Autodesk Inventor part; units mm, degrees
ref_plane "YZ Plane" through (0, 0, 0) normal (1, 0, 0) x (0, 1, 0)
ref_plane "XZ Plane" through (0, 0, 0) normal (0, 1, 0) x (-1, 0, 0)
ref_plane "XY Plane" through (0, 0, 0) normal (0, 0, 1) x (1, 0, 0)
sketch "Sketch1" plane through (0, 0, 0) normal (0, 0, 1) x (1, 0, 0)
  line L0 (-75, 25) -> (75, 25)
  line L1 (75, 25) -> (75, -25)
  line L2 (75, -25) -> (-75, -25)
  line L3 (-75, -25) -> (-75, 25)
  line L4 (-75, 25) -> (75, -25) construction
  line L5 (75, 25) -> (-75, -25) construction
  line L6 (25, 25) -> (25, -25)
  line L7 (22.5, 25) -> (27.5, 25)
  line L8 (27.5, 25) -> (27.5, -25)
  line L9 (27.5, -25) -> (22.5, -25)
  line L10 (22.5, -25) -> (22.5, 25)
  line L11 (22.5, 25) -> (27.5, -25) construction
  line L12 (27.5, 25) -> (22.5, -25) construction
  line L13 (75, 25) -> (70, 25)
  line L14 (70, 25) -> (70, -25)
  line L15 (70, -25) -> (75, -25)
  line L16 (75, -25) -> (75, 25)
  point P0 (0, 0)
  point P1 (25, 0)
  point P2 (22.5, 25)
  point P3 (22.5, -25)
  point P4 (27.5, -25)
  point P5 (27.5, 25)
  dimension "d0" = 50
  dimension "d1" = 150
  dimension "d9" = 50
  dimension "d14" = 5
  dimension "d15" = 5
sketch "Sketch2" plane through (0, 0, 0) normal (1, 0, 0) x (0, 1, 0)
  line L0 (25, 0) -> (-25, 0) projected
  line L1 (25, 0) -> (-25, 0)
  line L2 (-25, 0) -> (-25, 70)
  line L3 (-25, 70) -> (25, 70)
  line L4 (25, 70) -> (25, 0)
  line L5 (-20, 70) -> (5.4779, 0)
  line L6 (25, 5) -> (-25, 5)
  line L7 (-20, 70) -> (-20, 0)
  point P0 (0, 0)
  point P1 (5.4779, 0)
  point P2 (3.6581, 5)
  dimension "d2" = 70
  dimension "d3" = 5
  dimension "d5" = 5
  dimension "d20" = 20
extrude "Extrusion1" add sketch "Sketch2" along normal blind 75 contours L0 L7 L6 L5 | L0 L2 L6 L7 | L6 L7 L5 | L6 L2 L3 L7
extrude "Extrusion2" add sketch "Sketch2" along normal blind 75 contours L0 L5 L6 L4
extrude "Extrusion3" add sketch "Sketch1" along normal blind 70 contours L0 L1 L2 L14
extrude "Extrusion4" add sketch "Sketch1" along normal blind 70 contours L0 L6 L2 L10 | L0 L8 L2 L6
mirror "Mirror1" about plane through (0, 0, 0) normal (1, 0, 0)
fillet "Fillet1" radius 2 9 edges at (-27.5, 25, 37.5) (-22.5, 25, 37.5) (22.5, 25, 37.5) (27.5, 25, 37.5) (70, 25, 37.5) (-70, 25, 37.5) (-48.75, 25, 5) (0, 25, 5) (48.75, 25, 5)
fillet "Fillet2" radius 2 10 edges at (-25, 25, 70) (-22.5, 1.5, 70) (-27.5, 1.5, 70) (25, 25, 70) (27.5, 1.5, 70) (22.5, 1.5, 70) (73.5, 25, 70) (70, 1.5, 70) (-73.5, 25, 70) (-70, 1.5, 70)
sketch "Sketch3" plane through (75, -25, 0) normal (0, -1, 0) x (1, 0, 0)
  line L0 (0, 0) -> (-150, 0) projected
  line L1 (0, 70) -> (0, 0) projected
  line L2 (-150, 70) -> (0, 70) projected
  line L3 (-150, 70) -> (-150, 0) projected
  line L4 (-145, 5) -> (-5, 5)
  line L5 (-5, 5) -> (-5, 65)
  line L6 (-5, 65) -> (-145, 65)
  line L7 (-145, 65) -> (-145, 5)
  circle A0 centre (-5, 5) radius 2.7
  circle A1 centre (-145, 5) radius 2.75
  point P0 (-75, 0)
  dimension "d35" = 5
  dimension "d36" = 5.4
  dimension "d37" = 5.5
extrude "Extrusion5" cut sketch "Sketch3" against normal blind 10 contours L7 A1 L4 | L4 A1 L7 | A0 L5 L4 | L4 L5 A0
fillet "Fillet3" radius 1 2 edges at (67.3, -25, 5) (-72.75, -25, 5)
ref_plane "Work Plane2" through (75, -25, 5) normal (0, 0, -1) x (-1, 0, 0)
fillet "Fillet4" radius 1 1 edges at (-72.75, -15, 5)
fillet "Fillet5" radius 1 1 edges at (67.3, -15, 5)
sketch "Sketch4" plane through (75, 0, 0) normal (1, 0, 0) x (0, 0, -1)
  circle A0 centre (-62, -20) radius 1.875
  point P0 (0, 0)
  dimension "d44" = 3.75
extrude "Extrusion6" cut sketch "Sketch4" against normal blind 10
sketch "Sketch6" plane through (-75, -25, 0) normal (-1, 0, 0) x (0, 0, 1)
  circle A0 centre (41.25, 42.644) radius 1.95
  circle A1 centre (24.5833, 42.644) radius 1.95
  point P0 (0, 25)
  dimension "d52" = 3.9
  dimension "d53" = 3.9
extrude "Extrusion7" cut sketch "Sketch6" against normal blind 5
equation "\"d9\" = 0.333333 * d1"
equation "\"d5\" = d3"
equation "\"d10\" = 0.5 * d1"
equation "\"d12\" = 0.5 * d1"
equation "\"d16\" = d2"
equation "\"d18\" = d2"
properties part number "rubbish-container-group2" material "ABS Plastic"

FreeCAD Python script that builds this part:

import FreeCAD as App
import Part
import Sketcher
Q = App.Units.Quantity


def edges_at(feature, points):
    """Names of the edges that pass closest to the given points."""
    edges = feature.Shape.Edges
    near = lambda p: min(range(len(edges)), key=lambda i: edges[i].distToShape(Part.Vertex(*p))[0])
    return sorted({f"Edge{near(p) + 1}" for p in points})


def add_polygon(sketch, points):
    """Adds a closed chain of lines whose ends are joined by coincident constraints."""
    first, n = sketch.GeometryCount, len(points)
    for a, b in zip(points, points[1:] + points[:1]):
        sketch.addGeometry(Part.LineSegment(App.Vector(*a, 0), App.Vector(*b, 0)), False)
    for i in range(n):
        sketch.addConstraint(Sketcher.Constraint("Coincident", first + i, 2, first + (i + 1) % n, 1))

doc = App.newDocument("Part")
params = doc.addObject("Spreadsheet::Sheet", "Params")
for row, (alias, value) in enumerate([
    ("sketch1_width", "5 mm"),
    ("sketch1_height", "70 mm"),
    ("pad1_length", "75 mm"),
    ("sketch2_height", "5 mm"),
    ("pad2_length", "75 mm"),
    ("sketch3_width", "5 mm"),
    ("sketch3_height", "50 mm"),
    ("pad3_length", "70 mm"),
    ("sketch4_width", "5 mm"),
    ("sketch4_height", "50 mm"),
    ("pad4_length", "70 mm"),
    ("fillet_radius", "2 mm"),
    ("fillet2_radius", "2 mm"),
    ("sketch5_diameter", "5.5 mm"),
    ("sketch5_diameter2", "5.4 mm"),
    ("pocket1_length", "10 mm"),
    ("fillet3_radius", "1 mm"),
    ("fillet4_radius", "1 mm"),
    ("fillet5_radius", "1 mm"),
    ("sketch6_diameter", "3.75 mm"),
    ("pocket2_length", "10 mm"),
    ("sketch7_diameter", "3.9 mm"),
    ("pocket3_length", "5 mm"),
], start=1):
    params.set(f"A{row}", alias)
    params.set(f"B{row}", "=" + value)
    params.setAlias(f"B{row}", alias)

body = doc.addObject("PartDesign::Body", "Body")

sketch1 = body.newObject("Sketcher::SketchObject", "Sketch")
sketch1.AttachmentSupport = (doc.getObject("YZ_Plane"), [""])
sketch1.MapMode = "FlatFace"
add_polygon(sketch1, [(5, 0), (-20, 70), (-25, 70), (-25, 0)])
sketch1.addConstraint(Sketcher.Constraint("Horizontal", 1))
sketch1.addConstraint(Sketcher.Constraint("Vertical", 2))
sketch1.addConstraint(Sketcher.Constraint("Horizontal", 3))
sketch1.addConstraint(Sketcher.Constraint("PointOnObject", 2, 2, -1))
sketch1.addConstraint(Sketcher.Constraint("DistanceX", 1, 2, 1, 1, 5.0))
sketch1.addConstraint(Sketcher.Constraint("DistanceY", 2, 2, 2, 1, 70.0))
sketch1.addConstraint(Sketcher.Constraint("DistanceX", 0, 2, -1, 1, 20.0))
sketch1.addConstraint(Sketcher.Constraint("Angle", 0, Q("110 deg")))
sketch1.setExpression("Constraints[8]", "Params.sketch1_width")
sketch1.setExpression("Constraints[9]", "Params.sketch1_height")
pad1 = body.newObject("PartDesign::Pad", "Pad")
pad1.Profile = sketch1
pad1.setExpression("Length", "Params.pad1_length")

sketch2 = body.newObject("Sketcher::SketchObject", "Sketch001")
sketch2.AttachmentSupport = (doc.getObject("YZ_Plane"), [""])
sketch2.MapMode = "FlatFace"
add_polygon(sketch2, [(5, 0), (25, 0), (25, 5), (4, 5)])
sketch2.addConstraint(Sketcher.Constraint("Horizontal", 0))
sketch2.addConstraint(Sketcher.Constraint("Vertical", 1))
sketch2.addConstraint(Sketcher.Constraint("Horizontal", 2))
sketch2.addConstraint(Sketcher.Constraint("PointOnObject", 0, 2, -1))
sketch2.addConstraint(Sketcher.Constraint("DistanceY", 1, 1, 1, 2, 5.0))
sketch2.addConstraint(Sketcher.Constraint("Angle", 3, Q("-70 deg")))
sketch2.addConstraint(Sketcher.Constraint("DistanceX", -1, 1, 0, 2, 25.0))
sketch2.addConstraint(Sketcher.Constraint("DistanceX", 0, 1, 0, 2, 19.522))
sketch2.setExpression("Constraints[8]", "Params.sketch2_height")
pad2 = body.newObject("PartDesign::Pad", "Pad001")
pad2.Profile = sketch2
pad2.setExpression("Length", "Params.pad2_length")

sketch3 = body.newObject("Sketcher::SketchObject", "Sketch002")
sketch3.AttachmentSupport = (doc.getObject("XY_Plane"), [""])
sketch3.MapMode = "FlatFace"
add_polygon(sketch3, [(75, 25), (70, 25), (70, -25), (75, -25)])
sketch3.addConstraint(Sketcher.Constraint("Horizontal", 0))
sketch3.addConstraint(Sketcher.Constraint("Vertical", 1))
sketch3.addConstraint(Sketcher.Constraint("Horizontal", 2))
sketch3.addConstraint(Sketcher.Constraint("Vertical", 3))
sketch3.addConstraint(Sketcher.Constraint("DistanceX", 0, 2, 0, 1, 5.0))
sketch3.addConstraint(Sketcher.Constraint("DistanceY", 1, 2, 1, 1, 50.0))
sketch3.addConstraint(Sketcher.Constraint("DistanceX", -1, 1, 0, 2, 70.0))
sketch3.addConstraint(Sketcher.Constraint("DistanceY", -1, 1, 0, 2, 25.0))
sketch3.setExpression("Constraints[8]", "Params.sketch3_width")
sketch3.setExpression("Constraints[9]", "Params.sketch3_height")
pad3 = body.newObject("PartDesign::Pad", "Pad002")
pad3.Profile = sketch3
pad3.setExpression("Length", "Params.pad3_length")

sketch4 = body.newObject("Sketcher::SketchObject", "Sketch003")
sketch4.AttachmentSupport = (doc.getObject("XY_Plane"), [""])
sketch4.MapMode = "FlatFace"
add_polygon(sketch4, [(22, 25), (22, -25), (28, -25), (28, 25)])
sketch4.addConstraint(Sketcher.Constraint("Vertical", 0))
sketch4.addConstraint(Sketcher.Constraint("Horizontal", 1))
sketch4.addConstraint(Sketcher.Constraint("Vertical", 2))
sketch4.addConstraint(Sketcher.Constraint("Horizontal", 3))
sketch4.addConstraint(Sketcher.Constraint("DistanceX", 1, 1, 1, 2, 5.0))
sketch4.addConstraint(Sketcher.Constraint("DistanceY", 0, 2, 0, 1, 50.0))
sketch4.addConstraint(Sketcher.Constraint("DistanceY", 0, 2, -1, 1, 25.0))
sketch4.addConstraint(Sketcher.Constraint("DistanceX", -1, 1, 0, 2, 22.5))
sketch4.setExpression("Constraints[8]", "Params.sketch4_width")
sketch4.setExpression("Constraints[9]", "Params.sketch4_height")
pad4 = body.newObject("PartDesign::Pad", "Pad003")
pad4.Profile = sketch4
pad4.setExpression("Length", "Params.pad4_length")
doc.recompute()

mirrored = body.newObject("PartDesign::Mirrored", "Mirrored")
mirrored.TransformMode = "Transform body"
mirrored.MirrorPlane = (doc.getObject("YZ_Plane"), [""])
body.Tip = mirrored
doc.recompute()

fillet = body.newObject("PartDesign::Fillet", "Fillet")
fillet.Base = (mirrored, edges_at(mirrored, [
    (-27.5, 25, 37.5),
    (-22.5, 25, 37.5),
    (22.5, 25, 37.5),
    (27.5, 25, 37.5),
    (70, 25, 37.5),
    (-70, 25, 37.5),
    (-48.75, 25, 5),
    (0, 25, 5),
    (48.75, 25, 5),
]))
fillet.setExpression("Radius", "Params.fillet_radius")
doc.recompute()

fillet2 = body.newObject("PartDesign::Fillet", "Fillet001")
fillet2.Base = (fillet, edges_at(fillet, [
    (-25, 25, 70),
    (-22.5, 1.5, 70),
    (-27.5, 1.5, 70),
    (25, 25, 70),
    (27.5, 1.5, 70),
    (22.5, 1.5, 70),
    (73.5, 25, 70),
    (70, 1.5, 70),
    (-73.5, 25, 70),
    (-70, 1.5, 70),
]))
fillet2.setExpression("Radius", "Params.fillet2_radius")

sketch5 = body.newObject("Sketcher::SketchObject", "Sketch004")
sketch5.AttachmentSupport = (doc.getObject("XZ_Plane"), [""])
sketch5.MapMode = "FlatFace"
sketch5.AttachmentOffset = App.Placement(App.Vector(0, 0, 25), App.Rotation())
sketch5.addGeometry(Part.Circle(App.Vector(-70, 5, 0), App.Vector(0, 0, 1), 2.8), False)
sketch5.addGeometry(Part.Circle(App.Vector(70, 5, 0), App.Vector(0, 0, 1), 2.7), False)
sketch5.addConstraint(Sketcher.Constraint("Symmetric", 0, 3, 1, 3, -2))
sketch5.addConstraint(Sketcher.Constraint("Diameter", 0, 5.5))
sketch5.addConstraint(Sketcher.Constraint("Diameter", 1, 5.4))
sketch5.addConstraint(Sketcher.Constraint("DistanceY", -1, 1, 0, 3, 5.0))
sketch5.addConstraint(Sketcher.Constraint("DistanceX", 0, 3, -1, 1, 70.0))
sketch5.setExpression("Constraints[1]", "Params.sketch5_diameter")
sketch5.setExpression("Constraints[2]", "Params.sketch5_diameter2")
pocket1 = body.newObject("PartDesign::Pocket", "Pocket")
pocket1.Profile = sketch5
pocket1.setExpression("Length", "Params.pocket1_length")
doc.recompute()

fillet3 = body.newObject("PartDesign::Fillet", "Fillet002")
fillet3.Base = (pocket1, edges_at(pocket1, [(67.3, -25, 5), (-72.75, -25, 5)]))
fillet3.setExpression("Radius", "Params.fillet3_radius")
doc.recompute()

fillet4 = body.newObject("PartDesign::Fillet", "Fillet003")
fillet4.Base = (fillet3, edges_at(fillet3, [(-72.75, -15, 5)]))
fillet4.setExpression("Radius", "Params.fillet4_radius")
doc.recompute()

fillet5 = body.newObject("PartDesign::Fillet", "Fillet004")
fillet5.Base = (fillet4, edges_at(fillet4, [(67.3, -15, 5)]))
fillet5.setExpression("Radius", "Params.fillet5_radius")

sketch6 = body.newObject("Sketcher::SketchObject", "Sketch005")
sketch6.AttachmentSupport = (doc.getObject("YZ_Plane"), [""])
sketch6.MapMode = "FlatFace"
sketch6.AttachmentOffset = App.Placement(App.Vector(0, 0, 75), App.Rotation())
sketch6.addGeometry(Part.Circle(App.Vector(-20, 62, 0), App.Vector(0, 0, 1), 1.9), False)
sketch6.addConstraint(Sketcher.Constraint("Diameter", 0, 3.75))
sketch6.addConstraint(Sketcher.Constraint("DistanceX", 0, 3, -1, 1, 20.0))
sketch6.addConstraint(Sketcher.Constraint("DistanceY", -1, 1, 0, 3, 62.0))
sketch6.setExpression("Constraints[0]", "Params.sketch6_diameter")
pocket2 = body.newObject("PartDesign::Pocket", "Pocket001")
pocket2.Profile = sketch6
pocket2.setExpression("Length", "Params.pocket2_length")

sketch7 = body.newObject("Sketcher::SketchObject", "Sketch006")
sketch7.AttachmentSupport = (doc.getObject("YZ_Plane"), [""])
sketch7.MapMode = "FlatFace"
sketch7.AttachmentOffset = App.Placement(App.Vector(0, 0, -75), App.Rotation())
sketch7.addGeometry(Part.Circle(App.Vector(17.6, 41.2, 0), App.Vector(0, 0, 1), 1.9), False)
sketch7.addGeometry(Part.Circle(App.Vector(17.6, 24.6, 0), App.Vector(0, 0, 1), 1.9), False)
sketch7.addConstraint(Sketcher.Constraint("Equal", 0, 1))
sketch7.addConstraint(Sketcher.Constraint("Vertical", 0, 3, 1, 3))
sketch7.addConstraint(Sketcher.Constraint("Diameter", 0, 3.9))
sketch7.addConstraint(Sketcher.Constraint("DistanceY", -1, 1, 0, 3, 41.25))
sketch7.addConstraint(Sketcher.Constraint("DistanceX", -1, 1, 0, 3, 17.644))
sketch7.addConstraint(Sketcher.Constraint("DistanceY", -1, 1, 1, 3, 24.5833))
sketch7.setExpression("Constraints[2]", "Params.sketch7_diameter")
pocket3 = body.newObject("PartDesign::Pocket", "Pocket002")
pocket3.Profile = sketch7
pocket3.setExpression("Length", "Params.pocket3_length")
pocket3.Reversed = True

doc.recompute()
